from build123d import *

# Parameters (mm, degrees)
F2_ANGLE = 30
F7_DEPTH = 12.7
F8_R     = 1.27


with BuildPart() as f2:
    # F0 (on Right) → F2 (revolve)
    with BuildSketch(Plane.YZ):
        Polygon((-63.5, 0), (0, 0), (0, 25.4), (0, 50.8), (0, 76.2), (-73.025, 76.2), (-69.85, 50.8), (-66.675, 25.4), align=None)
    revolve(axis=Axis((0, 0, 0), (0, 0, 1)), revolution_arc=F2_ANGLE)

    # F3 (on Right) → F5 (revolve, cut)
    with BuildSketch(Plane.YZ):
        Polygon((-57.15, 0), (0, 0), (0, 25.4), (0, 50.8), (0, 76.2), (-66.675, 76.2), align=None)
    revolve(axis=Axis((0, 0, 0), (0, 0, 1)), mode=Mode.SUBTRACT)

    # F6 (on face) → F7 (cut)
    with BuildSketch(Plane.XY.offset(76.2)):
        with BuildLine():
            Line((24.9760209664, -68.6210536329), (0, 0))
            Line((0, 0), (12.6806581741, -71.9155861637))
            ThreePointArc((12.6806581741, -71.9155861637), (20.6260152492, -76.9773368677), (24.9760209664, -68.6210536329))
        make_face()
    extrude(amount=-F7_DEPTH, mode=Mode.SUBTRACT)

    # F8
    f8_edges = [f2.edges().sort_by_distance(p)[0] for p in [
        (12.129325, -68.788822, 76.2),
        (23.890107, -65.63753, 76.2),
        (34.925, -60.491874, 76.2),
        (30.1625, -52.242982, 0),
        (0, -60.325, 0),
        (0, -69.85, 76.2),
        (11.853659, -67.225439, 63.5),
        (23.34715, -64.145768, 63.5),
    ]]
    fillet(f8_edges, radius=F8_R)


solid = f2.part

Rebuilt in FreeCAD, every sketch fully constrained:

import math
import FreeCAD as App
import Part
import Sketcher
Q = App.Units.Quantity


def edges_at(feature, points):
    """Names of the edges that pass closest to the given points."""
    edges = feature.Shape.Edges
    near = lambda p: min(range(len(edges)), key=lambda i: edges[i].distToShape(Part.Vertex(*p))[0])
    return sorted({f"Edge{near(p) + 1}" for p in points})


def add_polygon(sketch, points):
    """Adds a closed chain of lines whose ends are joined by coincident constraints."""
    first, n = sketch.GeometryCount, len(points)
    for a, b in zip(points, points[1:] + points[:1]):
        sketch.addGeometry(Part.LineSegment(App.Vector(*a, 0), App.Vector(*b, 0)), False)
    for i in range(n):
        sketch.addConstraint(Sketcher.Constraint("Coincident", first + i, 2, first + (i + 1) % n, 1))

doc = App.newDocument("Part")
body = doc.addObject("PartDesign::Body", "Body")

# Sketch on YZ plane
sketch1 = body.newObject("Sketcher::SketchObject", "Sketch")
sketch1.AttachmentSupport = (doc.getObject("YZ_Plane"), [""])
sketch1.MapMode = "FlatFace"
add_polygon(sketch1, [(-64, 0), (0, 0), (0, 76), (-73, 76)])  # lines 0-3
sketch1.addConstraint([
    Sketcher.Constraint("Horizontal", 0),
    Sketcher.Constraint("Vertical", 1),
    Sketcher.Constraint("Horizontal", 2),
    Sketcher.Constraint("Coincident", 0, 2, -1, 1),
    Sketcher.Constraint("DistanceY", 1, 1, 1, 2, Q("3 in")),
    Sketcher.Constraint("DistanceX", 0, 1, 0, 2, Q("2.5 in")),
    Sketcher.Constraint("DistanceX", 2, 2, 2, 1, Q("2.875 in")),
])
revolution = body.newObject("PartDesign::Revolution", "Revolution")
revolution.Profile = sketch1
revolution.ReferenceAxis = (sketch1, ["V_Axis"])
revolution.Angle = 30

# Sketch on YZ plane
sketch2 = body.newObject("Sketcher::SketchObject", "Sketch001")
sketch2.AttachmentSupport = (doc.getObject("YZ_Plane"), [""])
sketch2.MapMode = "FlatFace"
add_polygon(sketch2, [(-57, 0), (0, 0), (0, 76), (-67, 76)])  # lines 0-3
sketch2.addConstraint([
    Sketcher.Constraint("Horizontal", 0),
    Sketcher.Constraint("Vertical", 1),
    Sketcher.Constraint("Horizontal", 2),
    Sketcher.Constraint("Coincident", 0, 2, -1, 1),
    Sketcher.Constraint("DistanceY", 1, 1, 1, 2, Q("3 in")),
    Sketcher.Constraint("DistanceX", 0, 1, 0, 2, Q("2.25 in")),
    Sketcher.Constraint("DistanceX", 2, 2, 2, 1, Q("2.625 in")),
])
groove = body.newObject("PartDesign::Groove", "Groove")
groove.Profile = sketch2
groove.ReferenceAxis = (sketch2, ["V_Axis"])
groove.Angle = 360

# Sketch on XY plane
sketch3 = body.newObject("Sketcher::SketchObject", "Sketch002")
sketch3.AttachmentSupport = (doc.getObject("XY_Plane"), [""])
sketch3.MapMode = "FlatFace"
sketch3.AttachmentOffset = App.Placement(App.Vector(0, 0, 3 * 25.4), App.Rotation())
sketch3.addGeometry([
    Part.LineSegment(App.Vector(25, -69, 0), App.Vector(0, 0, 0)),
    Part.LineSegment(App.Vector(0, 0, 0), App.Vector(13, -72, 0)),
    Part.ArcOfCircle(Part.Circle(App.Vector(19, -71, 0), App.Vector(0, 0, 1), 6), math.radians(-170), math.radians(20)),
], False)
sketch3.addConstraint([
    Sketcher.Constraint("Coincident", 0, 2, 1, 1),
    Sketcher.Constraint("Tangent", 1, 2, 2, 1),
    Sketcher.Constraint("Tangent", 2, 2, 0, 1),
    Sketcher.Constraint("Coincident", 0, 2, -1, 1),
    Sketcher.Constraint("Angle", 0, Q("110 deg")),
    Sketcher.Constraint("Angle", 1, Q("-80 deg")),
    Sketcher.Constraint("Distance", 0, Q("2.875 in")),
])
pocket1 = body.newObject("PartDesign::Pocket", "Pocket")
pocket1.Profile = sketch3
pocket1.Length = Q("0.5 in")
doc.recompute()

fillet = body.newObject("PartDesign::Fillet", "Fillet")
fillet.Base = (pocket1, edges_at(pocket1, [
    (12.129, -68.789, 76.2),
    (23.89, -65.638, 76.2),
    (34.925, -60.492, 76.2),
    (30.163, -52.243, 0),
    (0, -60.325, 0),
    (0, -69.85, 76.2),
    (11.854, -67.225, 63.5),
    (23.347, -64.146, 63.5),
]))
fillet.Radius = Q("0.05 in")

doc.recompute()
